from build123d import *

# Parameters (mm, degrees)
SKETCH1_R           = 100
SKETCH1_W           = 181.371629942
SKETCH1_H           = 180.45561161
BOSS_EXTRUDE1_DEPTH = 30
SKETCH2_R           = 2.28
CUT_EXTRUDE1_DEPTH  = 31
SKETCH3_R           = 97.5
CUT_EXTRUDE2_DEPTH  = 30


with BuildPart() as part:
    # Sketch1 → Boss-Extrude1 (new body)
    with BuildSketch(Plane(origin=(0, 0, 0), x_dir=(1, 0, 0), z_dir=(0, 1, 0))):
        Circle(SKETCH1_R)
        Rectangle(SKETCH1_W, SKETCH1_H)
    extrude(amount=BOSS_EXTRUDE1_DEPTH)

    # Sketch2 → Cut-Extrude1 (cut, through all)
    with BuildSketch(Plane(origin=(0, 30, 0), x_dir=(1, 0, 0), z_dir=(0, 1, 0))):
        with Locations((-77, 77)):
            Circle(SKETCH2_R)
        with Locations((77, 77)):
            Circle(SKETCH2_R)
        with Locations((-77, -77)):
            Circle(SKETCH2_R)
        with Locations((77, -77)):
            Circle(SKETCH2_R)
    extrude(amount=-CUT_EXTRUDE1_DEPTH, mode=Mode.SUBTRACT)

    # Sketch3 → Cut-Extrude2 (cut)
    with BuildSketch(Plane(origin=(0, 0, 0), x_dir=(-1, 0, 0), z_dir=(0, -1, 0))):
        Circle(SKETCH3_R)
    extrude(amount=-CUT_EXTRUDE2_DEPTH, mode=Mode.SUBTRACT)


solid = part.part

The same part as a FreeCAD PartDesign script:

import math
import FreeCAD as App
import Part
import Sketcher
from FreeCAD import Vector
Q = App.Units.Quantity

doc = App.newDocument("Part")
body = doc.addObject("PartDesign::Body", "Body")

# Sketch on XZ plane
sketch1 = doc.addObject("Sketcher::SketchObject", "Sketch")
body.addObject(sketch1)
sketch1.AttachmentSupport = (doc.XZ_Plane, [""])
sketch1.MapMode = "FlatFace"
sketch1.addGeometry(Part.ArcOfCircle(Part.Circle(Vector(0, 0, 0), Vector(0, 0, 1), 100), math.radians(-25), math.radians(25)), False)
sketch1.addGeometry(Part.LineSegment(Vector(91, -42, 0), Vector(91, -90, 0)), False)
sketch1.addGeometry(Part.LineSegment(Vector(91, -90, 0), Vector(43, -90, 0)), False)
sketch1.addGeometry(Part.ArcOfCircle(Part.Circle(Vector(0, 0, 0), Vector(0, 0, 1), 100), math.radians(-116), math.radians(-64)), False)
sketch1.addGeometry(Part.LineSegment(Vector(-43, -90, 0), Vector(-91, -90, 0)), False)
sketch1.addGeometry(Part.LineSegment(Vector(-91, -90, 0), Vector(-91, -42, 0)), False)
sketch1.addGeometry(Part.ArcOfCircle(Part.Circle(Vector(0, 0, 0), Vector(0, 0, 1), 100), math.radians(155), math.radians(205)), False)
sketch1.addGeometry(Part.LineSegment(Vector(-91, 42, 0), Vector(-91, 90, 0)), False)
sketch1.addGeometry(Part.LineSegment(Vector(-91, 90, 0), Vector(-43, 90, 0)), False)
sketch1.addGeometry(Part.ArcOfCircle(Part.Circle(Vector(0, 0, 0), Vector(0, 0, 1), 100), math.radians(64), math.radians(116)), False)
sketch1.addGeometry(Part.LineSegment(Vector(43, 90, 0), Vector(91, 90, 0)), False)
sketch1.addGeometry(Part.LineSegment(Vector(91, 90, 0), Vector(91, 42, 0)), False)
sketch1.addConstraint(Sketcher.Constraint("Coincident", 0, 1, 1, 1))
sketch1.addConstraint(Sketcher.Constraint("Coincident", 1, 2, 2, 1))
sketch1.addConstraint(Sketcher.Constraint("Coincident", 2, 2, 3, 2))
sketch1.addConstraint(Sketcher.Constraint("Coincident", 3, 1, 4, 1))
sketch1.addConstraint(Sketcher.Constraint("Coincident", 4, 2, 5, 1))
sketch1.addConstraint(Sketcher.Constraint("Coincident", 5, 2, 6, 2))
sketch1.addConstraint(Sketcher.Constraint("Coincident", 6, 1, 7, 1))
sketch1.addConstraint(Sketcher.Constraint("Coincident", 7, 2, 8, 1))
sketch1.addConstraint(Sketcher.Constraint("Coincident", 8, 2, 9, 2))
sketch1.addConstraint(Sketcher.Constraint("Coincident", 9, 1, 10, 1))
sketch1.addConstraint(Sketcher.Constraint("Coincident", 10, 2, 11, 1))
sketch1.addConstraint(Sketcher.Constraint("Coincident", 11, 2, 0, 2))
sketch1.addConstraint(Sketcher.Constraint("Vertical", 1))
sketch1.addConstraint(Sketcher.Constraint("Horizontal", 2))
sketch1.addConstraint(Sketcher.Constraint("Horizontal", 4))
sketch1.addConstraint(Sketcher.Constraint("Vertical", 5))
sketch1.addConstraint(Sketcher.Constraint("Vertical", 7))
sketch1.addConstraint(Sketcher.Constraint("Horizontal", 8))
sketch1.addConstraint(Sketcher.Constraint("Horizontal", 10))
sketch1.addConstraint(Sketcher.Constraint("Vertical", 11))
sketch1.addConstraint(Sketcher.Constraint("Coincident", 0, 3, -1, 1))
sketch1.addConstraint(Sketcher.Constraint("Coincident", 3, 3, -1, 1))
sketch1.addConstraint(Sketcher.Constraint("Coincident", 6, 3, -1, 1))
sketch1.addConstraint(Sketcher.Constraint("Coincident", 9, 3, -1, 1))
sketch1.addConstraint(Sketcher.Constraint("Equal", 0, 3))
sketch1.addConstraint(Sketcher.Constraint("Equal", 3, 6))
sketch1.addConstraint(Sketcher.Constraint("Equal", 6, 9))
sketch1.addConstraint(Sketcher.Constraint("Symmetric", 1, 2, 7, 2, -1, 1))
sketch1.addConstraint(Sketcher.Constraint("Symmetric", 4, 2, 10, 2, -1, 1))
sketch1.addConstraint(Sketcher.Constraint("Symmetric", 1, 2, 4, 2, -2))
sketch1.addConstraint(Sketcher.Constraint("Radius", 0, Q("100 mm")))
sketch1.addConstraint(Sketcher.Constraint("DistanceY", 0, 1, -1, 1, Q("42.143599 mm")))
sketch1.addConstraint(Sketcher.Constraint("DistanceX", 2, 2, 2, 1, Q("47.570353 mm")))
pad1 = doc.addObject("PartDesign::Pad", "Pad")
body.addObject(pad1)
pad1.Profile = sketch1
pad1.Length = 30
pad1.Reversed = True

# Sketch on XZ plane
sketch2 = doc.addObject("Sketcher::SketchObject", "Sketch001")
body.addObject(sketch2)
sketch2.AttachmentSupport = (doc.XZ_Plane, [""])
sketch2.MapMode = "FlatFace"
sketch2.AttachmentOffset = App.Placement(Vector(0, 0, -30), App.Rotation())
sketch2.addGeometry(Part.Circle(Vector(-77, -77, 0), Vector(0, 0, 1), 2.3), False)
sketch2.addGeometry(Part.Circle(Vector(77, -77, 0), Vector(0, 0, 1), 2.3), False)
sketch2.addGeometry(Part.Circle(Vector(-77, 77, 0), Vector(0, 0, 1), 2.3), False)
sketch2.addGeometry(Part.Circle(Vector(77, 77, 0), Vector(0, 0, 1), 2.3), False)
sketch2.addConstraint(Sketcher.Constraint("Equal", 0, 1))
sketch2.addConstraint(Sketcher.Constraint("Equal", 1, 2))
sketch2.addConstraint(Sketcher.Constraint("Equal", 2, 3))
sketch2.addConstraint(Sketcher.Constraint("Symmetric", 1, 3, 2, 3, -1, 1))
sketch2.addConstraint(Sketcher.Constraint("Symmetric", 0, 3, 3, 3, -1, 1))
sketch2.addConstraint(Sketcher.Constraint("Symmetric", 0, 3, 1, 3, -2))
sketch2.addConstraint(Sketcher.Constraint("Diameter", 0, Q("4.56 mm")))
sketch2.addConstraint(Sketcher.Constraint("DistanceX", 0, 3, -1, 1, Q("77 mm")))
sketch2.addConstraint(Sketcher.Constraint("DistanceY", 0, 3, -1, 1, Q("77 mm")))
pocket1 = doc.addObject("PartDesign::Pocket", "Pocket")
body.addObject(pocket1)
pocket1.Profile = sketch2
pocket1.Type = "ThroughAll"
pocket1.Reversed = True

# Sketch on XZ plane
sketch3 = doc.addObject("Sketcher::SketchObject", "Sketch002")
body.addObject(sketch3)
sketch3.AttachmentSupport = (doc.XZ_Plane, [""])
sketch3.MapMode = "FlatFace"
sketch3.addGeometry(Part.Circle(Vector(0, 0, 0), Vector(0, 0, 1), 98), False)
sketch3.addConstraint(Sketcher.Constraint("Coincident", 0, 3, -1, 1))
sketch3.addConstraint(Sketcher.Constraint("Diameter", 0, Q("195 mm")))
pocket2 = doc.addObject("PartDesign::Pocket", "Pocket001")
body.addObject(pocket2)
pocket2.Profile = sketch3
pocket2.Length = 30

doc.recompute()
